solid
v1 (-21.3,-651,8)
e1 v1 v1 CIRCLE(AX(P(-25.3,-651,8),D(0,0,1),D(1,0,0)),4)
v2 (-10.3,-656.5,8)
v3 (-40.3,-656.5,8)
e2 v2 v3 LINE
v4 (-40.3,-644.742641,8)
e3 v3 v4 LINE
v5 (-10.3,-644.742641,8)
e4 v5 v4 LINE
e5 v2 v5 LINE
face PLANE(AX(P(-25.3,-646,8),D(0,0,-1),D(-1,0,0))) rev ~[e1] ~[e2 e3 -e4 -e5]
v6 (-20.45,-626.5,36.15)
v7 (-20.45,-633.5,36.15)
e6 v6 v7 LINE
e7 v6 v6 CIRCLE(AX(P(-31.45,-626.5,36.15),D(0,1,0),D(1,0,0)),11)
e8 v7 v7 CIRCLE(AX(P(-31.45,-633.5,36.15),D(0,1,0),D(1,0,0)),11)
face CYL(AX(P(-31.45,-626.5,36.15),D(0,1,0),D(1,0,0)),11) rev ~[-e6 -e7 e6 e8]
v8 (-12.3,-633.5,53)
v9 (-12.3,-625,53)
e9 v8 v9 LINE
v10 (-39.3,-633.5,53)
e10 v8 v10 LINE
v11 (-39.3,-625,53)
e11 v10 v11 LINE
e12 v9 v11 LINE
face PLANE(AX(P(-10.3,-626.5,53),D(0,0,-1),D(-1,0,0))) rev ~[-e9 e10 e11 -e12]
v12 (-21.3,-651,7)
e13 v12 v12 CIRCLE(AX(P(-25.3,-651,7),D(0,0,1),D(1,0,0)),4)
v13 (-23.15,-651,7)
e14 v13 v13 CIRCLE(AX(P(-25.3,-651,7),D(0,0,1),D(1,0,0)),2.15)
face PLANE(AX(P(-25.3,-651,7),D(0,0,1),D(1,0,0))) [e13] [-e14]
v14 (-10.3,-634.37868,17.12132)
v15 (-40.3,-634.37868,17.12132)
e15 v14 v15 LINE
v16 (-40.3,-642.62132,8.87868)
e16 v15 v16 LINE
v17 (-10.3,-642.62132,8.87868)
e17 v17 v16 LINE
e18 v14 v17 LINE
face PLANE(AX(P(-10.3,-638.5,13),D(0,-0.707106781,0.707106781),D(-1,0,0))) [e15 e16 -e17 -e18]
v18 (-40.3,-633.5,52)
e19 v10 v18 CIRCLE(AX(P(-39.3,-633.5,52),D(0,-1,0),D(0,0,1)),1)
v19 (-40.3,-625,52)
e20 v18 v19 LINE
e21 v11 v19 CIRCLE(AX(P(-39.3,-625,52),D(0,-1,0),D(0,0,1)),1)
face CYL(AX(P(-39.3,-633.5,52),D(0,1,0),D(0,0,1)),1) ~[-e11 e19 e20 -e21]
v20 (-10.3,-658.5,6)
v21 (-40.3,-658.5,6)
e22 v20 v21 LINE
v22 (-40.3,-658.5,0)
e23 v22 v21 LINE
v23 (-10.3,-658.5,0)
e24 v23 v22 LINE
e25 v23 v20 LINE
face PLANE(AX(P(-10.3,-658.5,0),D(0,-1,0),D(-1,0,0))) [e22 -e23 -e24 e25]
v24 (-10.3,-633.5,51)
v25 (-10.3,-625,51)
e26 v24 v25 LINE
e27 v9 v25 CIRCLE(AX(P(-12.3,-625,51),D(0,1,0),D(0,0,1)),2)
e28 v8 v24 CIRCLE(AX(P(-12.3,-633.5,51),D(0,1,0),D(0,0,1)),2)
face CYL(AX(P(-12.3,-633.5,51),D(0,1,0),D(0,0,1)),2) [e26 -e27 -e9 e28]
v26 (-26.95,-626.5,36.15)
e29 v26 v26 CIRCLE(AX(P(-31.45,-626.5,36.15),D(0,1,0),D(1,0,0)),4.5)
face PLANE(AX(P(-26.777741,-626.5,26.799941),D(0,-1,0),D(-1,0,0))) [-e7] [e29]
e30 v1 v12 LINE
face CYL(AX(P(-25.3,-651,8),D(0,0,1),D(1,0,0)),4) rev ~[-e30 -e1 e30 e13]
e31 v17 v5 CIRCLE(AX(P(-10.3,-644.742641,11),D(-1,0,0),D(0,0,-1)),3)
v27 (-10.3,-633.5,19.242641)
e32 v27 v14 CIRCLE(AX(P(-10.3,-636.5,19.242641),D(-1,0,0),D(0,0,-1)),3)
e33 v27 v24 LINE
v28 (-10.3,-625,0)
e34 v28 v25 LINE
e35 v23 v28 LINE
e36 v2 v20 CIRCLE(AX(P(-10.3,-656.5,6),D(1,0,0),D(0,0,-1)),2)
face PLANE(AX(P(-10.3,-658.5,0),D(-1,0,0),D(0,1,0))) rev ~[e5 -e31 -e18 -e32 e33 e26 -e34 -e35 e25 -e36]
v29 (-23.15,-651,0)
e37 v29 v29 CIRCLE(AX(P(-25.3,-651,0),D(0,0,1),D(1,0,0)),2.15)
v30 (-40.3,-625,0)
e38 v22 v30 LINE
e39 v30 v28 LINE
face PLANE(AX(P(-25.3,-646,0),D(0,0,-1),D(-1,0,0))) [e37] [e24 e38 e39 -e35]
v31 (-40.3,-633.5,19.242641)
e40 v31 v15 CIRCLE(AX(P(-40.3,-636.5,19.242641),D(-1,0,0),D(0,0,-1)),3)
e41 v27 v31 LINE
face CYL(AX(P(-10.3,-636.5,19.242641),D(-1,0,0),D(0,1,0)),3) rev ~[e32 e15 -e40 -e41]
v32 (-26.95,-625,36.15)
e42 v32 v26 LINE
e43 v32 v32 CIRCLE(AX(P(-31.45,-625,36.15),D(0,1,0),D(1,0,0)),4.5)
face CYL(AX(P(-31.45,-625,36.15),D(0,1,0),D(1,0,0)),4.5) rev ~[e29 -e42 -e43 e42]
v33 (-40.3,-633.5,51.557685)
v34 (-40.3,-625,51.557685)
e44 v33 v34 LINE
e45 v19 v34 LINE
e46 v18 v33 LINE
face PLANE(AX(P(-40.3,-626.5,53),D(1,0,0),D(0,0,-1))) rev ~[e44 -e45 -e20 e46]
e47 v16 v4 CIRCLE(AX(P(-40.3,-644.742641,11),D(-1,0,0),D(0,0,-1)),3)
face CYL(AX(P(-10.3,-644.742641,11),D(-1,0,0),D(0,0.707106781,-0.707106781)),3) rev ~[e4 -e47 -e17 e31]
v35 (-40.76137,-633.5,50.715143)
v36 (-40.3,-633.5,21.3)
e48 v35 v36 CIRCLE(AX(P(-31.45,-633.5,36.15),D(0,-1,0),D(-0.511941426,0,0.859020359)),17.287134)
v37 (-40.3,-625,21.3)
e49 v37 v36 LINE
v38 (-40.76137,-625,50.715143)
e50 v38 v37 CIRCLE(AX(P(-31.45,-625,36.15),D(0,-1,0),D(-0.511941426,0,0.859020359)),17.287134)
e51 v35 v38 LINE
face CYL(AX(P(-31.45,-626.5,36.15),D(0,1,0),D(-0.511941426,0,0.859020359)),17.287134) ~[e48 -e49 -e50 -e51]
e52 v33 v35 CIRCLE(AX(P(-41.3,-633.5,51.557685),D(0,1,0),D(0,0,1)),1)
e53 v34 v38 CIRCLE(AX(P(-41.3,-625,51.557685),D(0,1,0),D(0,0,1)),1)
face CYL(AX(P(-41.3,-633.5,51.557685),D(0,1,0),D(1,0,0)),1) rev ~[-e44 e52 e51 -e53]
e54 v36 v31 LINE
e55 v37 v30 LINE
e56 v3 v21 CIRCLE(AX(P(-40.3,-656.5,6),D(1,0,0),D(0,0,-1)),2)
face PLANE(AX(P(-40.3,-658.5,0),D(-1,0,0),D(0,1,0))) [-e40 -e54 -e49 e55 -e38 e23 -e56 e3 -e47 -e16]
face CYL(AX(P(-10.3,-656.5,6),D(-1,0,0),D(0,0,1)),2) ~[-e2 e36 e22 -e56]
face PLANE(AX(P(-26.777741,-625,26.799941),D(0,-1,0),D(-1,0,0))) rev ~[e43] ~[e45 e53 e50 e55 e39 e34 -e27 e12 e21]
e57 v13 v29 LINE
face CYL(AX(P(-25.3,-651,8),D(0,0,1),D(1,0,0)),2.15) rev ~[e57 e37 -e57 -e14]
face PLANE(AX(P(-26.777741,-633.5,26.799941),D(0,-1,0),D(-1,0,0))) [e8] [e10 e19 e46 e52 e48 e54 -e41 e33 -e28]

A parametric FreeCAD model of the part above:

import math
import FreeCAD as App
import Part
import Sketcher

V = App.Vector
Q = App.Units.Quantity


def edges_at(feature, points):
    """Names of the edges that pass closest to the given points."""
    edges = feature.Shape.Edges
    near = lambda p: min(range(len(edges)), key=lambda i: edges[i].distToShape(Part.Vertex(*p))[0])
    return sorted({f"Edge{near(p) + 1}" for p in points})

doc = App.newDocument("Part")
body = doc.addObject("PartDesign::Body", "Body")

# Sketch on XZ plane
sketch1 = doc.addObject("Sketcher::SketchObject", "Sketch")
body.addObject(sketch1)
sketch1.AttachmentSupport = (doc.XZ_Plane, [""])
sketch1.MapMode = "FlatFace"
sketch1.AttachmentOffset = App.Placement(V(0, 0, 625), App.Rotation())
sketch1.addGeometry([
    Part.ArcOfCircle(Part.Circle(V(-31.5, 36.1, 0), V(0, 0, 1), 17.3), math.radians(121), math.radians(239)),  # 0
    Part.LineSegment(V(-40.3, 51, 0), V(-40.3, 53, 0)),  # 1
    Part.LineSegment(V(-40.3, 53, 0), V(-10.3, 53, 0)),  # 2
    Part.LineSegment(V(-10.3, 53, 0), V(-10.3, 0, 0)),  # 3
    Part.LineSegment(V(-10.3, 0, 0), V(-40.3, 0, 0)),  # 4
    Part.LineSegment(V(-40.3, 0, 0), V(-40.3, 21.3, 0)),  # 5
    Part.Circle(V(-31.5, 36.1, 0), V(0, 0, 1), 4.5),  # 6
], False)
sketch1.addConstraint([
    Sketcher.Constraint("Coincident", 0, 1, 1, 1),
    Sketcher.Constraint("Coincident", 1, 2, 2, 1),
    Sketcher.Constraint("Coincident", 2, 2, 3, 1),
    Sketcher.Constraint("Coincident", 3, 2, 4, 1),
    Sketcher.Constraint("Coincident", 4, 2, 5, 1),
    Sketcher.Constraint("Coincident", 5, 2, 0, 2),
    Sketcher.Constraint("Vertical", 1),
    Sketcher.Constraint("Horizontal", 2),
    Sketcher.Constraint("Vertical", 3),
    Sketcher.Constraint("Horizontal", 4),
    Sketcher.Constraint("Vertical", 5),
    Sketcher.Constraint("Coincident", 6, 3, 0, 3),
    Sketcher.Constraint("PointOnObject", 3, 2, -1),
    Sketcher.Constraint("Vertical", 1, 2, 4, 2),
    Sketcher.Constraint("Diameter", 6, Q("9 mm")),
    Sketcher.Constraint("DistanceX", 2, 1, 2, 2, Q("30 mm")),
    Sketcher.Constraint("DistanceY", 1, 1, 1, 2, Q("2 mm")),
    Sketcher.Constraint("DistanceY", 3, 2, 3, 1, Q("53 mm")),
    Sketcher.Constraint("DistanceY", 5, 1, 5, 2, Q("21.3 mm")),
    Sketcher.Constraint("DistanceX", 0, 1, -1, 1, Q("40.3 mm")),
    Sketcher.Constraint("DistanceX", 0, 3, -1, 1, Q("31.45 mm")),
])
pad1 = doc.addObject("PartDesign::Pad", "Pad")
body.addObject(pad1)
pad1.Profile = sketch1
pad1.Length = 1.5

# Sketch on XZ plane
sketch2 = doc.addObject("Sketcher::SketchObject", "Sketch001")
body.addObject(sketch2)
sketch2.AttachmentSupport = (doc.XZ_Plane, [""])
sketch2.MapMode = "FlatFace"
sketch2.AttachmentOffset = App.Placement(V(0, 0, 626.5), App.Rotation())
sketch2.addGeometry([
    Part.ArcOfCircle(Part.Circle(V(-31.5, 36.1, 0), V(0, 0, 1), 17.3), math.radians(121), math.radians(239)),  # 0
    Part.LineSegment(V(-40.3, 51, 0), V(-40.3, 53, 0)),  # 1
    Part.LineSegment(V(-40.3, 53, 0), V(-10.3, 53, 0)),  # 2
    Part.LineSegment(V(-10.3, 53, 0), V(-10.3, 0, 0)),  # 3
    Part.LineSegment(V(-10.3, 0, 0), V(-40.3, 0, 0)),  # 4
    Part.LineSegment(V(-40.3, 0, 0), V(-40.3, 21.3, 0)),  # 5
    Part.Circle(V(-31.5, 36.1, 0), V(0, 0, 1), 11),  # 6
], False)
sketch2.addConstraint([
    Sketcher.Constraint("Coincident", 0, 1, 1, 1),
    Sketcher.Constraint("Coincident", 1, 2, 2, 1),
    Sketcher.Constraint("Coincident", 2, 2, 3, 1),
    Sketcher.Constraint("Coincident", 3, 2, 4, 1),
    Sketcher.Constraint("Coincident", 4, 2, 5, 1),
    Sketcher.Constraint("Coincident", 5, 2, 0, 2),
    Sketcher.Constraint("Vertical", 1),
    Sketcher.Constraint("Horizontal", 2),
    Sketcher.Constraint("Vertical", 3),
    Sketcher.Constraint("Horizontal", 4),
    Sketcher.Constraint("Vertical", 5),
    Sketcher.Constraint("Coincident", 6, 3, 0, 3),
    Sketcher.Constraint("PointOnObject", 3, 2, -1),
    Sketcher.Constraint("Vertical", 1, 2, 4, 2),
    Sketcher.Constraint("Diameter", 6, Q("22 mm")),
    Sketcher.Constraint("DistanceX", 2, 1, 2, 2, Q("30 mm")),
    Sketcher.Constraint("DistanceY", 1, 1, 1, 2, Q("2 mm")),
    Sketcher.Constraint("DistanceY", 3, 2, 3, 1, Q("53 mm")),
    Sketcher.Constraint("DistanceY", 5, 1, 5, 2, Q("21.3 mm")),
    Sketcher.Constraint("DistanceX", 0, 1, -1, 1, Q("40.3 mm")),
    Sketcher.Constraint("DistanceX", 0, 3, -1, 1, Q("31.45 mm")),
])
pad2 = doc.addObject("PartDesign::Pad", "Pad001")
body.addObject(pad2)
pad2.Profile = sketch2
pad2.Length = 7

# Sketch on XY plane
sketch3 = doc.addObject("Sketcher::SketchObject", "Sketch002")
body.addObject(sketch3)
sketch3.AttachmentSupport = (doc.XY_Plane, [""])
sketch3.MapMode = "FlatFace"
sketch3.addGeometry([
    Part.LineSegment(V(-10, -634, 0), V(-10, -658, 0)),
    Part.LineSegment(V(-10, -658, 0), V(-40, -658, 0)),
    Part.LineSegment(V(-40, -658, 0), V(-40, -634, 0)),
    Part.LineSegment(V(-40, -634, 0), V(-10, -634, 0)),
], False)
sketch3.addConstraint([
    Sketcher.Constraint("Coincident", 0, 2, 1, 1),
    Sketcher.Constraint("Coincident", 1, 2, 2, 1),
    Sketcher.Constraint("Coincident", 2, 2, 3, 1),
    Sketcher.Constraint("Coincident", 3, 2, 0, 1),
    Sketcher.Constraint("Vertical", 0),
    Sketcher.Constraint("Horizontal", 1),
    Sketcher.Constraint("Vertical", 2),
    Sketcher.Constraint("Horizontal", 3),
    Sketcher.Constraint("DistanceX", 1, 2, 1, 1, Q("30 mm")),
    Sketcher.Constraint("DistanceY", 0, 2, 0, 1, Q("25 mm")),
    Sketcher.Constraint("DistanceX", 0, 2, -1, 1, Q("10.3 mm")),
    Sketcher.Constraint("DistanceY", 0, 2, -1, 1, Q("658.5 mm")),
])
pad3 = doc.addObject("PartDesign::Pad", "Pad002")
body.addObject(pad3)
pad3.Profile = sketch3
pad3.Length = 8
doc.recompute()

chamfer = doc.addObject("PartDesign::Chamfer", "Chamfer")
body.addObject(chamfer)
chamfer.Base = (pad3, edges_at(pad3, [(-25.3, -633.5, 8)]))
chamfer.Size = 10

# Sketch on XY plane
sketch4 = doc.addObject("Sketcher::SketchObject", "Sketch003")
body.addObject(sketch4)
sketch4.AttachmentSupport = (doc.XY_Plane, [""])
sketch4.MapMode = "FlatFace"
sketch4.AttachmentOffset = App.Placement(V(0, 0, 8), App.Rotation())
sketch4.addGeometry(Part.Circle(V(-25.3, -651, 0), V(0, 0, 1), 2.1), False)
sketch4.addConstraint([
    Sketcher.Constraint("Diameter", 0, Q("4.3 mm")),
    Sketcher.Constraint("DistanceY", 0, 3, -1, 1, Q("651 mm")),
    Sketcher.Constraint("DistanceX", 0, 3, -1, 1, Q("25.3 mm")),
])
pocket1 = doc.addObject("PartDesign::Pocket", "Pocket")
body.addObject(pocket1)
pocket1.Profile = sketch4
pocket1.Type = "ThroughAll"
doc.recompute()

fillet = doc.addObject("PartDesign::Fillet", "Fillet")
body.addObject(fillet)
fillet.Base = (pocket1, edges_at(pocket1, [(-40.3, -629.25, 53), (-40.3, -629.25, 51)]))
fillet.Radius = 1
doc.recompute()

fillet2 = doc.addObject("PartDesign::Fillet", "Fillet001")
body.addObject(fillet2)
fillet2.Base = (fillet, edges_at(fillet, [(-10.3, -629.25, 53)]))
fillet2.Radius = 2
doc.recompute()

fillet3 = doc.addObject("PartDesign::Fillet", "Fillet002")
body.addObject(fillet3)
fillet3.Base = (fillet2, edges_at(fillet2, [(-25.3, -633.5, 18), (-25.3, -643.5, 8)]))
fillet3.Radius = 3
doc.recompute()

fillet4 = doc.addObject("PartDesign::Fillet", "Fillet003")
body.addObject(fillet4)
fillet4.Base = (fillet3, edges_at(fillet3, [(-25.3, -658.5, 8)]))
fillet4.Radius = 2

# Sketch on XY plane
sketch5 = doc.addObject("Sketcher::SketchObject", "Sketch004")
body.addObject(sketch5)
sketch5.AttachmentSupport = (doc.XY_Plane, [""])
sketch5.MapMode = "FlatFace"
sketch5.AttachmentOffset = App.Placement(V(0, 0, 8), App.Rotation())
sketch5.addGeometry([
    Part.Circle(V(-25.3, -651, 0), V(0, 0, 1), 4),
    Part.Circle(V(-25.3, -651, 0), V(0, 0, 1), 2.1),
], False)
sketch5.addConstraint([
    Sketcher.Constraint("Coincident", 1, 3, 0, 3),
    Sketcher.Constraint("Diameter", 0, Q("8 mm")),
    Sketcher.Constraint("Diameter", 1, Q("4.3 mm")),
    Sketcher.Constraint("DistanceY", 0, 3, -1, 1, Q("651 mm")),
    Sketcher.Constraint("DistanceX", 0, 3, -1, 1, Q("25.3 mm")),
])
pocket2 = doc.addObject("PartDesign::Pocket", "Pocket001")
body.addObject(pocket2)
pocket2.Profile = sketch5
pocket2.Length = 1

doc.recompute()
